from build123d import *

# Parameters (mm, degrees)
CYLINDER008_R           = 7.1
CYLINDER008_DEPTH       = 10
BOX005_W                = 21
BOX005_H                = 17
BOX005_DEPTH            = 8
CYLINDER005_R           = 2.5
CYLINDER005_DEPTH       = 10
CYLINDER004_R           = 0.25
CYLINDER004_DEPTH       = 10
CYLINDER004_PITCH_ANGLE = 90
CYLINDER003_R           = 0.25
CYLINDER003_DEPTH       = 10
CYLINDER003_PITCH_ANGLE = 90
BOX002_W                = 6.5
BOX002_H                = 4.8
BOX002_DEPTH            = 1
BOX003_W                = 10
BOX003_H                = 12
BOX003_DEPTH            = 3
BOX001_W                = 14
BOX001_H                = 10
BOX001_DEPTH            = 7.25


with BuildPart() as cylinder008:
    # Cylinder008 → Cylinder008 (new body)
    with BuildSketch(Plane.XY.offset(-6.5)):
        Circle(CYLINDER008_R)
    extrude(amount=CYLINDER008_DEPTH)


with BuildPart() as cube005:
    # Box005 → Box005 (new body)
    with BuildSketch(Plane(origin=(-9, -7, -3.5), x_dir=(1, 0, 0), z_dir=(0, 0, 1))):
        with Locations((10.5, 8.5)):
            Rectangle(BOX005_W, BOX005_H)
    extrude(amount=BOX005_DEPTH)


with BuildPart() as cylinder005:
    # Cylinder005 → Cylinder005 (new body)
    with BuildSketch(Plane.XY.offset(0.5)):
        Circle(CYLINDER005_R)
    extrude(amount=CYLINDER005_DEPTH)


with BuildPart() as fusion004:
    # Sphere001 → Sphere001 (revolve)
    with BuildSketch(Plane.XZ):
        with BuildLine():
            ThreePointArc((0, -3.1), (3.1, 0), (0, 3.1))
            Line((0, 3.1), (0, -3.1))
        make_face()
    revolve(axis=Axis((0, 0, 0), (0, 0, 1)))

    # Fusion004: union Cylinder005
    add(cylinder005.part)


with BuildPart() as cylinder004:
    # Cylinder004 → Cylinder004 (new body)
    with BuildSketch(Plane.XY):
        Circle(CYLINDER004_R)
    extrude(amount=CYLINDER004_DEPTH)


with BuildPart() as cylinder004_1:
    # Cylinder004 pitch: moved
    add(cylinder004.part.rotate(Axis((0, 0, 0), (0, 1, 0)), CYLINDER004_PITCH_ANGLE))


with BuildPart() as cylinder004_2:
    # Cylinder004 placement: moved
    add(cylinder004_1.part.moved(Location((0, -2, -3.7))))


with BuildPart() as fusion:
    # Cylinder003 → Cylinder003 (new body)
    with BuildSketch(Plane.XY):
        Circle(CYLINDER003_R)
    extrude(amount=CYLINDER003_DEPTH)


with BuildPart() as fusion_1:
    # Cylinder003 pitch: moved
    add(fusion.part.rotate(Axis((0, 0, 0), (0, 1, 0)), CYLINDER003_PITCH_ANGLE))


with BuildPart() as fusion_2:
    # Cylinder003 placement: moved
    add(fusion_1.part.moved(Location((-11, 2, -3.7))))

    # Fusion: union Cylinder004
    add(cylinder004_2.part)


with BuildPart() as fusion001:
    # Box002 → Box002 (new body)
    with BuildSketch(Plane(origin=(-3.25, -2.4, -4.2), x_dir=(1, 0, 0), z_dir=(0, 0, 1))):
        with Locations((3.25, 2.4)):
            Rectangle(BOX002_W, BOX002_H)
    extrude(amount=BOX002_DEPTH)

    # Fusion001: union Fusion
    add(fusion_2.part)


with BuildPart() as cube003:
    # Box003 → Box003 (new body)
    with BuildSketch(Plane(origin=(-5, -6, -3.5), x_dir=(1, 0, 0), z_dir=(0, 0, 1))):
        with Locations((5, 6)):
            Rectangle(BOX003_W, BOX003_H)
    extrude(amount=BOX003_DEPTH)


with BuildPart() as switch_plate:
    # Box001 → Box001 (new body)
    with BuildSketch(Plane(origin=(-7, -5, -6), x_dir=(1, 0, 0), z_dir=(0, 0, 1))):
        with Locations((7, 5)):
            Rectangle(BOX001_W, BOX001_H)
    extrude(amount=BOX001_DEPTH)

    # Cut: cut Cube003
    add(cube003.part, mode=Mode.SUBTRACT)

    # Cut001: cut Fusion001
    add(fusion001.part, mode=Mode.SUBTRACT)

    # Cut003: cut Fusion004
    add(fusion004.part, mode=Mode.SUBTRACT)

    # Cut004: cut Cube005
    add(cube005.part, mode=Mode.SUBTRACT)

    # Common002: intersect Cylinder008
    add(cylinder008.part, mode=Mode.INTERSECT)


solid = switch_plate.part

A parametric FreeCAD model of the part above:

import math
import FreeCAD as App
import Part
import Sketcher

V = App.Vector
Q = App.Units.Quantity

doc = App.newDocument("Part")
params = doc.addObject("Spreadsheet::Sheet", "Params")
for row, (alias, value) in enumerate([
    ("sketch1_diameter", "14.2 mm"),
    ("pad1_length", "10 mm"),
    ("sketch2_width", "21 mm"),
    ("sketch2_height", "17 mm"),
    ("pad2_length", "8 mm"),
    ("sketch3_diameter", "5 mm"),
    ("pad3_length", "10 mm"),
    ("sketch4_radius", "3.1 mm"),
    ("revolution_angle", "360 deg"),
    ("sketch5_diameter", "0.5 mm"),
    ("pad4_length", "10 mm"),
    ("sketch6_diameter", "0.5 mm"),
    ("pad5_length", "10 mm"),
    ("sketch7_width", "6.5 mm"),
    ("sketch7_height", "4.8 mm"),
    ("pad6_length", "1 mm"),
    ("sketch8_width", "10 mm"),
    ("sketch8_height", "12 mm"),
    ("pad7_length", "3 mm"),
    ("sketch9_width", "14 mm"),
    ("sketch9_height", "10 mm"),
    ("pad8_length", "7.25 mm"),
], start=1):
    params.set(f"A{row}", alias)
    params.set(f"B{row}", "=" + value)
    params.setAlias(f"B{row}", alias)

body = doc.addObject("PartDesign::Body", "Body")

# Sketch on XY plane
sketch1 = body.newObject("Sketcher::SketchObject", "Sketch")
sketch1.AttachmentSupport = (doc.getObject("XY_Plane"), [""])
sketch1.MapMode = "FlatFace"
sketch1.AttachmentOffset = App.Placement(V(0, 0, -6.5), App.Rotation())
sketch1.addGeometry(Part.Circle(V(0, 0, 0), V(0, 0, 1), 7), False)
sketch1.addConstraint(Sketcher.Constraint("Coincident", 0, 3, -1, 1))
sketch1.addConstraint(Sketcher.Constraint("Diameter", 0, Q("14.2 mm")))
sketch1.setExpression("Constraints[1]", "Params.sketch1_diameter")
pad1 = body.newObject("PartDesign::Pad", "Pad")
pad1.Profile = sketch1
pad1.setExpression("Length", "Params.pad1_length")
body2 = doc.addObject("PartDesign::Body", "Body001")

# Sketch on XY plane
sketch2 = body2.newObject("Sketcher::SketchObject", "Sketch001")
sketch2.AttachmentSupport = (doc.getObject("XY_Plane001"), [""])
sketch2.MapMode = "FlatFace"
sketch2.AttachmentOffset = App.Placement(V(0, 0, -3.5), App.Rotation())
sketch2.addGeometry(Part.LineSegment(V(-9, 10, 0), V(-9, -7, 0)), False)
sketch2.addGeometry(Part.LineSegment(V(-9, -7, 0), V(12, -7, 0)), False)
sketch2.addGeometry(Part.LineSegment(V(12, -7, 0), V(12, 10, 0)), False)
sketch2.addGeometry(Part.LineSegment(V(12, 10, 0), V(-9, 10, 0)), False)
sketch2.addConstraint(Sketcher.Constraint("Coincident", 0, 2, 1, 1))
sketch2.addConstraint(Sketcher.Constraint("Coincident", 1, 2, 2, 1))
sketch2.addConstraint(Sketcher.Constraint("Coincident", 2, 2, 3, 1))
sketch2.addConstraint(Sketcher.Constraint("Coincident", 3, 2, 0, 1))
sketch2.addConstraint(Sketcher.Constraint("Vertical", 0))
sketch2.addConstraint(Sketcher.Constraint("Horizontal", 1))
sketch2.addConstraint(Sketcher.Constraint("Vertical", 2))
sketch2.addConstraint(Sketcher.Constraint("Horizontal", 3))
sketch2.addConstraint(Sketcher.Constraint("DistanceX", 1, 1, 1, 2, Q("21 mm")))
sketch2.addConstraint(Sketcher.Constraint("DistanceY", 0, 2, 0, 1, Q("17 mm")))
sketch2.addConstraint(Sketcher.Constraint("DistanceX", 0, 2, -1, 1, Q("9 mm")))
sketch2.addConstraint(Sketcher.Constraint("DistanceY", 0, 2, -1, 1, Q("7 mm")))
sketch2.setExpression("Constraints[8]", "Params.sketch2_width")
sketch2.setExpression("Constraints[9]", "Params.sketch2_height")
pad2 = body2.newObject("PartDesign::Pad", "Pad001")
pad2.Profile = sketch2
pad2.setExpression("Length", "Params.pad2_length")
body3 = doc.addObject("PartDesign::Body", "Body002")

# Sketch on XY plane
sketch3 = body3.newObject("Sketcher::SketchObject", "Sketch002")
sketch3.AttachmentSupport = (doc.getObject("XY_Plane002"), [""])
sketch3.MapMode = "FlatFace"
sketch3.AttachmentOffset = App.Placement(V(0, 0, 0.5), App.Rotation())
sketch3.addGeometry(Part.Circle(V(0, 0, 0), V(0, 0, 1), 2.5), False)
sketch3.addConstraint(Sketcher.Constraint("Coincident", 0, 3, -1, 1))
sketch3.addConstraint(Sketcher.Constraint("Diameter", 0, Q("5 mm")))
sketch3.setExpression("Constraints[1]", "Params.sketch3_diameter")
pad3 = body3.newObject("PartDesign::Pad", "Pad002")
pad3.Profile = sketch3
pad3.setExpression("Length", "Params.pad3_length")
body4 = doc.addObject("PartDesign::Body", "Body003")

# Sketch on XZ plane
sketch4 = body4.newObject("Sketcher::SketchObject", "Sketch003")
sketch4.AttachmentSupport = (doc.getObject("XZ_Plane003"), [""])
sketch4.MapMode = "FlatFace"
sketch4.addGeometry(Part.ArcOfCircle(Part.Circle(V(0, 0, 0), V(0, 0, 1), 3.1), math.radians(-90), math.radians(90)), False)
sketch4.addGeometry(Part.LineSegment(V(0, 3.1, 0), V(0, -3.1, 0)), False)
sketch4.addConstraint(Sketcher.Constraint("Coincident", 0, 1, 1, 2))
sketch4.addConstraint(Sketcher.Constraint("Coincident", 1, 1, 0, 2))
sketch4.addConstraint(Sketcher.Constraint("Vertical", 1))
sketch4.addConstraint(Sketcher.Constraint("Coincident", 0, 3, -1, 1))
sketch4.addConstraint(Sketcher.Constraint("PointOnObject", 0, 1, -2))
sketch4.addConstraint(Sketcher.Constraint("Radius", 0, Q("3.1 mm")))
sketch4.setExpression("Constraints[5]", "Params.sketch4_radius")
revolution = body4.newObject("PartDesign::Revolution", "Revolution")
revolution.Profile = sketch4
revolution.ReferenceAxis = (sketch4, ["V_Axis"])
revolution.setExpression("Angle", "Params.revolution_angle")
doc.recompute()

boolean = body4.newObject("PartDesign::Boolean", "Boolean")
boolean.Type = "Fuse"
boolean.addObjects([body3])
body5 = doc.addObject("PartDesign::Body", "Body004")

# Sketch on XY plane
sketch5 = body5.newObject("Sketcher::SketchObject", "Sketch004")
sketch5.AttachmentSupport = (doc.getObject("XY_Plane004"), [""])
sketch5.MapMode = "FlatFace"
sketch5.addGeometry(Part.Circle(V(0, 0, 0), V(0, 0, 1), 0.25), False)
sketch5.addConstraint(Sketcher.Constraint("Coincident", 0, 3, -1, 1))
sketch5.addConstraint(Sketcher.Constraint("Diameter", 0, Q("0.5 mm")))
sketch5.setExpression("Constraints[1]", "Params.sketch5_diameter")
pad4 = body5.newObject("PartDesign::Pad", "Pad003")
pad4.Profile = sketch5
pad4.setExpression("Length", "Params.pad4_length")
body6 = doc.addObject("PartDesign::Body", "Body005")
doc.recompute()

body5.Placement = App.Placement(V(0, 0, 0), App.Rotation(V(0, 1, 0), 90))
boolean2 = body6.newObject("PartDesign::Boolean", "Boolean001")
boolean2.Type = "Fuse"
boolean2.addObjects([body5])
body7 = doc.addObject("PartDesign::Body", "Body006")
doc.recompute()

body6.Placement = App.Placement(V(0, -2, -3.7), App.Rotation(V(0, 0, 1), 0))
boolean3 = body7.newObject("PartDesign::Boolean", "Boolean002")
boolean3.Type = "Fuse"
boolean3.addObjects([body6])
body8 = doc.addObject("PartDesign::Body", "Body007")

# Sketch on XY plane
sketch6 = body8.newObject("Sketcher::SketchObject", "Sketch005")
sketch6.AttachmentSupport = (doc.getObject("XY_Plane007"), [""])
sketch6.MapMode = "FlatFace"
sketch6.addGeometry(Part.Circle(V(0, 0, 0), V(0, 0, 1), 0.25), False)
sketch6.addConstraint(Sketcher.Constraint("Coincident", 0, 3, -1, 1))
sketch6.addConstraint(Sketcher.Constraint("Diameter", 0, Q("0.5 mm")))
sketch6.setExpression("Constraints[1]", "Params.sketch6_diameter")
pad5 = body8.newObject("PartDesign::Pad", "Pad004")
pad5.Profile = sketch6
pad5.setExpression("Length", "Params.pad5_length")
body9 = doc.addObject("PartDesign::Body", "Body008")
doc.recompute()

body8.Placement = App.Placement(V(0, 0, 0), App.Rotation(V(0, 1, 0), 90))
boolean4 = body9.newObject("PartDesign::Boolean", "Boolean003")
boolean4.Type = "Fuse"
boolean4.addObjects([body8])
body10 = doc.addObject("PartDesign::Body", "Body009")
body10.AllowCompound = True
doc.recompute()

body9.Placement = App.Placement(V(-11, 2, -3.7), App.Rotation(V(0, 0, 1), 0))
boolean5 = body10.newObject("PartDesign::Boolean", "Boolean004")
boolean5.Type = "Fuse"
boolean5.addObjects([body9])
doc.recompute()

boolean6 = body10.newObject("PartDesign::Boolean", "Boolean005")
boolean6.Type = "Fuse"
boolean6.addObjects([body7])
body11 = doc.addObject("PartDesign::Body", "Body010")

# Sketch on XY plane
sketch7 = body11.newObject("Sketcher::SketchObject", "Sketch006")
sketch7.AttachmentSupport = (doc.getObject("XY_Plane010"), [""])
sketch7.MapMode = "FlatFace"
sketch7.AttachmentOffset = App.Placement(V(0, 0, -4.2), App.Rotation())
sketch7.addGeometry(Part.LineSegment(V(-3.2, 2.4, 0), V(-3.2, -2.4, 0)), False)
sketch7.addGeometry(Part.LineSegment(V(-3.2, -2.4, 0), V(3.2, -2.4, 0)), False)
sketch7.addGeometry(Part.LineSegment(V(3.2, -2.4, 0), V(3.2, 2.4, 0)), False)
sketch7.addGeometry(Part.LineSegment(V(3.2, 2.4, 0), V(-3.2, 2.4, 0)), False)
sketch7.addConstraint(Sketcher.Constraint("Coincident", 0, 2, 1, 1))
sketch7.addConstraint(Sketcher.Constraint("Coincident", 1, 2, 2, 1))
sketch7.addConstraint(Sketcher.Constraint("Coincident", 2, 2, 3, 1))
sketch7.addConstraint(Sketcher.Constraint("Coincident", 3, 2, 0, 1))
sketch7.addConstraint(Sketcher.Constraint("Vertical", 0))
sketch7.addConstraint(Sketcher.Constraint("Horizontal", 1))
sketch7.addConstraint(Sketcher.Constraint("Vertical", 2))
sketch7.addConstraint(Sketcher.Constraint("Horizontal", 3))
sketch7.addConstraint(Sketcher.Constraint("Symmetric", 0, 2, 2, 2, -1, 1))
sketch7.addConstraint(Sketcher.Constraint("DistanceX", 1, 1, 1, 2, Q("6.5 mm")))
sketch7.addConstraint(Sketcher.Constraint("DistanceY", 0, 2, 0, 1, Q("4.8 mm")))
sketch7.setExpression("Constraints[9]", "Params.sketch7_width")
sketch7.setExpression("Constraints[10]", "Params.sketch7_height")
pad6 = body11.newObject("PartDesign::Pad", "Pad005")
pad6.Profile = sketch7
pad6.setExpression("Length", "Params.pad6_length")
doc.recompute()

boolean7 = body11.newObject("PartDesign::Boolean", "Boolean006")
boolean7.Type = "Fuse"
boolean7.addObjects([body10])
body12 = doc.addObject("PartDesign::Body", "Body011")

# Sketch on XY plane
sketch8 = body12.newObject("Sketcher::SketchObject", "Sketch007")
sketch8.AttachmentSupport = (doc.getObject("XY_Plane011"), [""])
sketch8.MapMode = "FlatFace"
sketch8.AttachmentOffset = App.Placement(V(0, 0, -3.5), App.Rotation())
sketch8.addGeometry(Part.LineSegment(V(-5, 6, 0), V(-5, -6, 0)), False)
sketch8.addGeometry(Part.LineSegment(V(-5, -6, 0), V(5, -6, 0)), False)
sketch8.addGeometry(Part.LineSegment(V(5, -6, 0), V(5, 6, 0)), False)
sketch8.addGeometry(Part.LineSegment(V(5, 6, 0), V(-5, 6, 0)), False)
sketch8.addConstraint(Sketcher.Constraint("Coincident", 0, 2, 1, 1))
sketch8.addConstraint(Sketcher.Constraint("Coincident", 1, 2, 2, 1))
sketch8.addConstraint(Sketcher.Constraint("Coincident", 2, 2, 3, 1))
sketch8.addConstraint(Sketcher.Constraint("Coincident", 3, 2, 0, 1))
sketch8.addConstraint(Sketcher.Constraint("Vertical", 0))
sketch8.addConstraint(Sketcher.Constraint("Horizontal", 1))
sketch8.addConstraint(Sketcher.Constraint("Vertical", 2))
sketch8.addConstraint(Sketcher.Constraint("Horizontal", 3))
sketch8.addConstraint(Sketcher.Constraint("Symmetric", 0, 2, 2, 2, -1, 1))
sketch8.addConstraint(Sketcher.Constraint("DistanceX", 1, 1, 1, 2, Q("10 mm")))
sketch8.addConstraint(Sketcher.Constraint("DistanceY", 0, 2, 0, 1, Q("12 mm")))
sketch8.setExpression("Constraints[9]", "Params.sketch8_width")
sketch8.setExpression("Constraints[10]", "Params.sketch8_height")
pad7 = body12.newObject("PartDesign::Pad", "Pad006")
pad7.Profile = sketch8
pad7.setExpression("Length", "Params.pad7_length")
body13 = doc.addObject("PartDesign::Body", "Body012")

# Sketch on XY plane
sketch9 = body13.newObject("Sketcher::SketchObject", "Sketch008")
sketch9.AttachmentSupport = (doc.getObject("XY_Plane012"), [""])
sketch9.MapMode = "FlatFace"
sketch9.AttachmentOffset = App.Placement(V(0, 0, -6), App.Rotation())
sketch9.addGeometry(Part.LineSegment(V(-7, 5, 0), V(-7, -5, 0)), False)
sketch9.addGeometry(Part.LineSegment(V(-7, -5, 0), V(7, -5, 0)), False)
sketch9.addGeometry(Part.LineSegment(V(7, -5, 0), V(7, 5, 0)), False)
sketch9.addGeometry(Part.LineSegment(V(7, 5, 0), V(-7, 5, 0)), False)
sketch9.addConstraint(Sketcher.Constraint("Coincident", 0, 2, 1, 1))
sketch9.addConstraint(Sketcher.Constraint("Coincident", 1, 2, 2, 1))
sketch9.addConstraint(Sketcher.Constraint("Coincident", 2, 2, 3, 1))
sketch9.addConstraint(Sketcher.Constraint("Coincident", 3, 2, 0, 1))
sketch9.addConstraint(Sketcher.Constraint("Vertical", 0))
sketch9.addConstraint(Sketcher.Constraint("Horizontal", 1))
sketch9.addConstraint(Sketcher.Constraint("Vertical", 2))
sketch9.addConstraint(Sketcher.Constraint("Horizontal", 3))
sketch9.addConstraint(Sketcher.Constraint("Symmetric", 0, 2, 2, 2, -1, 1))
sketch9.addConstraint(Sketcher.Constraint("DistanceX", 1, 1, 1, 2, Q("14 mm")))
sketch9.addConstraint(Sketcher.Constraint("DistanceY", 0, 2, 0, 1, Q("10 mm")))
sketch9.setExpression("Constraints[9]", "Params.sketch9_width")
sketch9.setExpression("Constraints[10]", "Params.sketch9_height")
pad8 = body13.newObject("PartDesign::Pad", "Pad007")
pad8.Profile = sketch9
pad8.setExpression("Length", "Params.pad8_length")
doc.recompute()

boolean8 = body13.newObject("PartDesign::Boolean", "Boolean007")
boolean8.Type = "Cut"
boolean8.addObjects([body12])
doc.recompute()

boolean9 = body13.newObject("PartDesign::Boolean", "Boolean008")
boolean9.Type = "Cut"
boolean9.addObjects([body11])
doc.recompute()

boolean10 = body13.newObject("PartDesign::Boolean", "Boolean009")
boolean10.Type = "Cut"
boolean10.addObjects([body4])
doc.recompute()

boolean11 = body13.newObject("PartDesign::Boolean", "Boolean010")
boolean11.Type = "Cut"
boolean11.addObjects([body2])
doc.recompute()

boolean12 = body13.newObject("PartDesign::Boolean", "Boolean011")
boolean12.Type = "Common"
boolean12.addObjects([body])

doc.recompute()
